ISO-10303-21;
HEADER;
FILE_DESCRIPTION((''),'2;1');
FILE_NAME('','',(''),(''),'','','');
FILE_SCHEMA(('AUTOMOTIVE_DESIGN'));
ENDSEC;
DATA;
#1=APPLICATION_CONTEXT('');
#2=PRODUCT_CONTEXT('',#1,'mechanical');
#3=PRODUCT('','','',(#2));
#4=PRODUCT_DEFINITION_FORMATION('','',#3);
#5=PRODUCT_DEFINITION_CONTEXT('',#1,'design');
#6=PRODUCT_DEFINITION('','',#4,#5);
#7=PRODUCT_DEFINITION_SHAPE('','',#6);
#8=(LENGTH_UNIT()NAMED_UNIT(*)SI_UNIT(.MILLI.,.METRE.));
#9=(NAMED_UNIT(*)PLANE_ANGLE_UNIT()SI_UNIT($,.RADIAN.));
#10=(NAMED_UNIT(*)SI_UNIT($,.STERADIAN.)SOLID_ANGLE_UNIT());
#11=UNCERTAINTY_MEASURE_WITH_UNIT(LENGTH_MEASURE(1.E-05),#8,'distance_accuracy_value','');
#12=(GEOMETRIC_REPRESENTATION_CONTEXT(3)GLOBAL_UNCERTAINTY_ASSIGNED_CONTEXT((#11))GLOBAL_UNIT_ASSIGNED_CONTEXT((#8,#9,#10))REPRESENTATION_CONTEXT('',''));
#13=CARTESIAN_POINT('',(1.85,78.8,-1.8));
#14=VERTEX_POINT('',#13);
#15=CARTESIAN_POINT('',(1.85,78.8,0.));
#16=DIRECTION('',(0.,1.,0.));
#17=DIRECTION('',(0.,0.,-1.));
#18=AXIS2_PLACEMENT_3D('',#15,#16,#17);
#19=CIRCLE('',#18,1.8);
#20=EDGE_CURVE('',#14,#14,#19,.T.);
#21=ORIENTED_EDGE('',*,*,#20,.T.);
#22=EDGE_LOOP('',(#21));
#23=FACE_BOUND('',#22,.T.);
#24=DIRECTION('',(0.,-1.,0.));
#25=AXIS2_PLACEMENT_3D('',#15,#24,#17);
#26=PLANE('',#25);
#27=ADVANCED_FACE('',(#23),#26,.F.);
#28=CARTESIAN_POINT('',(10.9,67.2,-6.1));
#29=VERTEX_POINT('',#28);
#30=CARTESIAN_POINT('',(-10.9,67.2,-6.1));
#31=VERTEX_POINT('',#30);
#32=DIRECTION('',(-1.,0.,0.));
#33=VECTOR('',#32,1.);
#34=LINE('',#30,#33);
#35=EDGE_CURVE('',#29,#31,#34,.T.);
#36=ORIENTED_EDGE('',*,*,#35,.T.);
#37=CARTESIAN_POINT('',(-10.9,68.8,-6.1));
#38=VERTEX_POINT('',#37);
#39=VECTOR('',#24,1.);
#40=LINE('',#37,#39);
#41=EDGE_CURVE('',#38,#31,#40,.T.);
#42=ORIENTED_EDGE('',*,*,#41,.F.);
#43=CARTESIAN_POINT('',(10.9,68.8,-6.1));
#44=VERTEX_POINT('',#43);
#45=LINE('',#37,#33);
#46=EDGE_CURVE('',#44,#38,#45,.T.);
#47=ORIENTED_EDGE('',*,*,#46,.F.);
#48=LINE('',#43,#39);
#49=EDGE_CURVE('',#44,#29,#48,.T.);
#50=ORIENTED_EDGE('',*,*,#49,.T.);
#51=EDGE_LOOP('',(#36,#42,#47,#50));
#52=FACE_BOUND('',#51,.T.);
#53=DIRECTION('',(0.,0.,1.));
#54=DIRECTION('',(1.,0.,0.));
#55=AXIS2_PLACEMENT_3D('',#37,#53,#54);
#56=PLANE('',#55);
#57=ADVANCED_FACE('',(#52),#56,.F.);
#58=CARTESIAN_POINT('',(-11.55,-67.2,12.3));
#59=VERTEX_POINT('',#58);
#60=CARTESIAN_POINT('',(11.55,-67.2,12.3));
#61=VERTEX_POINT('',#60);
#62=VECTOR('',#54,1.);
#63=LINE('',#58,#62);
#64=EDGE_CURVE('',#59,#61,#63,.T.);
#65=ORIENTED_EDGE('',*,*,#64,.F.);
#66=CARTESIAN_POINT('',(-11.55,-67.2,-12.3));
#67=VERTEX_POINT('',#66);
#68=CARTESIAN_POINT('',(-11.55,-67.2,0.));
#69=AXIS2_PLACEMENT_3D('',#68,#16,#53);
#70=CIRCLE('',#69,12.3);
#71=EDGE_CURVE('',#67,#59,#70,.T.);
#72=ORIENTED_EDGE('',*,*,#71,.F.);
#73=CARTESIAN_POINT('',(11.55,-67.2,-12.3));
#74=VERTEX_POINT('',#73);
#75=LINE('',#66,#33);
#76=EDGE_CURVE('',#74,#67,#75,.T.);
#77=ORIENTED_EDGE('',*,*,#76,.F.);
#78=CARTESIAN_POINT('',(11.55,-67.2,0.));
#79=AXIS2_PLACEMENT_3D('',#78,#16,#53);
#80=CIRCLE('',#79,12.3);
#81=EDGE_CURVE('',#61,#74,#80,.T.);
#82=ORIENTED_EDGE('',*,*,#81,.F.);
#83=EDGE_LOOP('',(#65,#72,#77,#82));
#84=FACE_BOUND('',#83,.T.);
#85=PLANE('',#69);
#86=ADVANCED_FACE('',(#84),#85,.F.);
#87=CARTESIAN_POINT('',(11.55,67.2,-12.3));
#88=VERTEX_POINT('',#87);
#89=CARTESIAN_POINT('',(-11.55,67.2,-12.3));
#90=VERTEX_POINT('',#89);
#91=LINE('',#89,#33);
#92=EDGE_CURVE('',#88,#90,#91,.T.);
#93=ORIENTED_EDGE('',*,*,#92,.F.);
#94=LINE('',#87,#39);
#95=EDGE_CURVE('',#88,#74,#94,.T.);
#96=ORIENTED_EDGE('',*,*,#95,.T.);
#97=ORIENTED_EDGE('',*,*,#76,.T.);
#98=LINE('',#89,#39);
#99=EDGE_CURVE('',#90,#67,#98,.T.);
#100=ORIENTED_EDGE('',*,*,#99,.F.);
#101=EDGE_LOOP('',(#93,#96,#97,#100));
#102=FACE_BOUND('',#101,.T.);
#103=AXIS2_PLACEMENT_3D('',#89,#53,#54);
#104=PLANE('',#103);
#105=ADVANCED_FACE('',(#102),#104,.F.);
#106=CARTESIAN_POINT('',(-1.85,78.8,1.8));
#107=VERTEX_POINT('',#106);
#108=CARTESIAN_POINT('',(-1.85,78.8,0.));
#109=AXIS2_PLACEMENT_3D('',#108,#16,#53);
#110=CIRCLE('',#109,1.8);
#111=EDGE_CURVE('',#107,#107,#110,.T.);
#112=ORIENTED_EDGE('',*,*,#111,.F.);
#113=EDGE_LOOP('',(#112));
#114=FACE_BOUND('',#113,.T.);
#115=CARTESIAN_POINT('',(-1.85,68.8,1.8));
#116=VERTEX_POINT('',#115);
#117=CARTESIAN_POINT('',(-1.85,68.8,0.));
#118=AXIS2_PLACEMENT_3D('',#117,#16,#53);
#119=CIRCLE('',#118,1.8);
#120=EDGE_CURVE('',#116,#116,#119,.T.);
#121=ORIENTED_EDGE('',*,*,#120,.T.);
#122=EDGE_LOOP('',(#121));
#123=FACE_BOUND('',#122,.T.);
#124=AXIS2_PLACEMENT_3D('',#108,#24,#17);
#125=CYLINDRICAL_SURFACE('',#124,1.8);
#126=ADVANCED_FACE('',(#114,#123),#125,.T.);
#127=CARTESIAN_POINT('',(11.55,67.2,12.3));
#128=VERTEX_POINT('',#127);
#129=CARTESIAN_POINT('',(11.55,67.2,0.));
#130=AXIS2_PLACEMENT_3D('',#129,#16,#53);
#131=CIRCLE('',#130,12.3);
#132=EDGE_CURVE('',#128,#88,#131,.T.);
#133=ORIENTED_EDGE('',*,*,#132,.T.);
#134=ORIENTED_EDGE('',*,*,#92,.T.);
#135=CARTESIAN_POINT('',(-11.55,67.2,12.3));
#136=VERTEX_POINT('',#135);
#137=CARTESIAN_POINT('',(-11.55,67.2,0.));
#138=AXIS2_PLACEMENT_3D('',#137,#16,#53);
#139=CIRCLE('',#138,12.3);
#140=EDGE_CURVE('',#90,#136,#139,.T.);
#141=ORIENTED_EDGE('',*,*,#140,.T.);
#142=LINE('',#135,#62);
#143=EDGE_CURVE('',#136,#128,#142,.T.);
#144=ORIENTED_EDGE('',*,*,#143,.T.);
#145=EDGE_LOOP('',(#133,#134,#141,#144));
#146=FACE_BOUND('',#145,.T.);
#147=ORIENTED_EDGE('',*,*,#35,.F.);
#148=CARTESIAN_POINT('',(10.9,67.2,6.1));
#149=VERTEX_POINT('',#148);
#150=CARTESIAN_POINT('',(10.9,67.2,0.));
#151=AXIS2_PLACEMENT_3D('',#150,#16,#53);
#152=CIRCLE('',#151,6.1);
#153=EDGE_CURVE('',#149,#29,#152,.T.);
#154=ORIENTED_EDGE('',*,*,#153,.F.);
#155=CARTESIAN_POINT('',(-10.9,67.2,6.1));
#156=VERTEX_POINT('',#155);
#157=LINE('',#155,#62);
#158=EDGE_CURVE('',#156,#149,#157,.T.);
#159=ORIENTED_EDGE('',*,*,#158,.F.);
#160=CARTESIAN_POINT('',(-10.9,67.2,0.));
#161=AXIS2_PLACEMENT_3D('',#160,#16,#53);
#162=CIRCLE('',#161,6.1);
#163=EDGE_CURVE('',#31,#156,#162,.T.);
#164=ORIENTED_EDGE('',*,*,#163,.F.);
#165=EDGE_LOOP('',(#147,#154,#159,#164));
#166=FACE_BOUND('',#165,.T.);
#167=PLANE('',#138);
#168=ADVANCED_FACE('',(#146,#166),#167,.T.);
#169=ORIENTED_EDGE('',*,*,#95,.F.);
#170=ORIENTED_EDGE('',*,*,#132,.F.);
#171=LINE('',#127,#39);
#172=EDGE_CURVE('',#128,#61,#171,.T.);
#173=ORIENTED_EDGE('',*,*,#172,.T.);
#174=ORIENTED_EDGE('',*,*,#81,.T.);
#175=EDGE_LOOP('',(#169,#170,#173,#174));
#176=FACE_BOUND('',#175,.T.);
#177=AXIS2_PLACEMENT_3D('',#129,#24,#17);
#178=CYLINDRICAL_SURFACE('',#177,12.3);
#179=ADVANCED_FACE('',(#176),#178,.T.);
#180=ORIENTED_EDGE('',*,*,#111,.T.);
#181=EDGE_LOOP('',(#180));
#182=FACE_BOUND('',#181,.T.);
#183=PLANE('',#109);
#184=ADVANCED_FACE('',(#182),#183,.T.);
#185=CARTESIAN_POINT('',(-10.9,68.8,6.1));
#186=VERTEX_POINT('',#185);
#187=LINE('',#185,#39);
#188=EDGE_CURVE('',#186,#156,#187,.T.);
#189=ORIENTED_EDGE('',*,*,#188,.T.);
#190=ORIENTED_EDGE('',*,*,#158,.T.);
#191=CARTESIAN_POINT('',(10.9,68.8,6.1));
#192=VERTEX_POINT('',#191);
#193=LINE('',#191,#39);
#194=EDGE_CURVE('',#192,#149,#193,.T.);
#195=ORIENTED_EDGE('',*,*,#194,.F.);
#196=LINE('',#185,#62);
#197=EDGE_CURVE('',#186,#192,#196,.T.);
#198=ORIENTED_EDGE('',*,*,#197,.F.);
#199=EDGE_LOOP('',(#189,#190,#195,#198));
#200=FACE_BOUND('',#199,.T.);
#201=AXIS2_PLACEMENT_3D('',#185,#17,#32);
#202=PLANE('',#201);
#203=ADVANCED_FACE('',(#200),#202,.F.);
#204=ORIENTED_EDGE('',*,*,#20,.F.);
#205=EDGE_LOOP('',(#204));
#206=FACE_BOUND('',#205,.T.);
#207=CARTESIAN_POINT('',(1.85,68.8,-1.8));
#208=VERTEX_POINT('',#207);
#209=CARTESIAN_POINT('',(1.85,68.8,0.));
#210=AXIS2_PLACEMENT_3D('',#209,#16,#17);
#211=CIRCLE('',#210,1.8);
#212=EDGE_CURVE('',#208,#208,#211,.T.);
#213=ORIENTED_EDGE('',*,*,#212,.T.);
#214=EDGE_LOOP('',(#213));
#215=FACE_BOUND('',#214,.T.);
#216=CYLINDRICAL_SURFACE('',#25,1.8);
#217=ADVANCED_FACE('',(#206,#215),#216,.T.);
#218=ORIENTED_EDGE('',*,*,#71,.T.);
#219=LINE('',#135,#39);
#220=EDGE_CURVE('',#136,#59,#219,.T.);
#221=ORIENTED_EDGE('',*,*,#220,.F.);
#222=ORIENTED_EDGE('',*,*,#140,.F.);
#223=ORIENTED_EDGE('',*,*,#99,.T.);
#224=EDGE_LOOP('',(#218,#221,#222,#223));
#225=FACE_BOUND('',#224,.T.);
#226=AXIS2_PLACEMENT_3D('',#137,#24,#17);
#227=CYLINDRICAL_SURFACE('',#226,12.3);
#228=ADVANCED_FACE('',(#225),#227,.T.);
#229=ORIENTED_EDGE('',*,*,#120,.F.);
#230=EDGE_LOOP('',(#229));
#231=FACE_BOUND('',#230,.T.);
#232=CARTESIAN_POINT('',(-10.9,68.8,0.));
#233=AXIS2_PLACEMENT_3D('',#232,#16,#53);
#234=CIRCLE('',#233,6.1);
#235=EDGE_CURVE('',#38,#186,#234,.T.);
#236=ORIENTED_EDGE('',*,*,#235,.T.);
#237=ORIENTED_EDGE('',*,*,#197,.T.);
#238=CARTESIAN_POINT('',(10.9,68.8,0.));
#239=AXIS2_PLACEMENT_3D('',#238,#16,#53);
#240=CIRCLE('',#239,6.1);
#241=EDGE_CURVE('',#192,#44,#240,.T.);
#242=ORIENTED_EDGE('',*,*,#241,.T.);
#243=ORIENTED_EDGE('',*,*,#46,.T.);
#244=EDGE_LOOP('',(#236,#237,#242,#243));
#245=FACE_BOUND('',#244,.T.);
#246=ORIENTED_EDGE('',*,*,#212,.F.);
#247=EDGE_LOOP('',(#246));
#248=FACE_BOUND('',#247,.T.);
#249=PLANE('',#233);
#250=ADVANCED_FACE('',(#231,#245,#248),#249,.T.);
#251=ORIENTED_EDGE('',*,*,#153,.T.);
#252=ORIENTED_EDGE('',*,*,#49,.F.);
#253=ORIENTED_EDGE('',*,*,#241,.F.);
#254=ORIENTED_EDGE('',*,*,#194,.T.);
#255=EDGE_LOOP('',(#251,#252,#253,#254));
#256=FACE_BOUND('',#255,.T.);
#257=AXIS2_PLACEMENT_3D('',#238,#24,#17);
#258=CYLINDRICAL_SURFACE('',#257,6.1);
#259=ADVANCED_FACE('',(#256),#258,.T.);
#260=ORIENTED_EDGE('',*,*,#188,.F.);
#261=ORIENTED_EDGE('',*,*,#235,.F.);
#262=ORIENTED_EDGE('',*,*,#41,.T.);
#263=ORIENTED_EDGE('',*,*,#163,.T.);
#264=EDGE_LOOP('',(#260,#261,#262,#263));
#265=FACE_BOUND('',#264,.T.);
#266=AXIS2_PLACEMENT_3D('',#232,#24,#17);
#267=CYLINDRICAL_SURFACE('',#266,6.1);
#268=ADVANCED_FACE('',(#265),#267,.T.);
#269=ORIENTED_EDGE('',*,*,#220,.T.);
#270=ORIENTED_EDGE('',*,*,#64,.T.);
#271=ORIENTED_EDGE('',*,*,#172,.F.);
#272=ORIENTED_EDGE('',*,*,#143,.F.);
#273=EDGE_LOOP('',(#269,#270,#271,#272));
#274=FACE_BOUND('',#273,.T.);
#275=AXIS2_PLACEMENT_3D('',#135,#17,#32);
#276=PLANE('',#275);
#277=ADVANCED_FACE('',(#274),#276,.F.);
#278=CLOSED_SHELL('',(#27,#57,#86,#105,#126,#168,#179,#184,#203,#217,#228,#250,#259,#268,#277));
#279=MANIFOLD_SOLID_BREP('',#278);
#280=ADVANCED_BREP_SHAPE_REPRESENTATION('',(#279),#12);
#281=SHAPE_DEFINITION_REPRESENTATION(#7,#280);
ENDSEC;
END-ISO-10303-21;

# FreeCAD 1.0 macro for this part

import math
import FreeCAD as App
import Part
import Sketcher
from FreeCAD import Vector

doc = App.newDocument("Part")
body = doc.addObject("PartDesign::Body", "Body")

# Sketch on XZ plane
sketch1 = doc.addObject("Sketcher::SketchObject", "Sketch")
body.addObject(sketch1)
sketch1.AttachmentSupport = (doc.XZ_Plane, [""])
sketch1.MapMode = "FlatFace"
sketch1.addGeometry(Part.LineSegment(Vector(11.55, -12.3, 0), Vector(-11.55, -12.3, 0)), False)
sketch1.addGeometry(Part.ArcOfCircle(Part.Circle(Vector(-11.55, 0, 0), Vector(0, 0, 1), 12.3), math.radians(90), math.radians(270)), False)
sketch1.addGeometry(Part.LineSegment(Vector(-11.55, 12.3, 0), Vector(11.55, 12.3, 0)), False)
sketch1.addGeometry(Part.ArcOfCircle(Part.Circle(Vector(11.55, 0, 0), Vector(0, 0, 1), 12.3), math.radians(-90), math.radians(90)), False)
sketch1.addConstraint(Sketcher.Constraint("Tangent", 0, 2, 1, 2))
sketch1.addConstraint(Sketcher.Constraint("Tangent", 1, 1, 2, 1))
sketch1.addConstraint(Sketcher.Constraint("Tangent", 2, 2, 3, 2))
sketch1.addConstraint(Sketcher.Constraint("Tangent", 3, 1, 0, 1))
sketch1.addConstraint(Sketcher.Constraint("Horizontal", 0))
sketch1.addConstraint(Sketcher.Constraint("Horizontal", 2))
sketch1.addConstraint(Sketcher.Constraint("Symmetric", 1, 3, 3, 3, -1, 1))
sketch1.addConstraint(Sketcher.Constraint("Radius", 1, 12.3))
sketch1.addConstraint(Sketcher.Constraint("DistanceX", 0, 2, 0, 1, 23.1))
pad1 = doc.addObject("PartDesign::Pad", "Pad")
body.addObject(pad1)
pad1.Profile = sketch1
pad1.Length = 134.4
pad1.Midplane = True

# Sketch on XZ plane
sketch2 = doc.addObject("Sketcher::SketchObject", "Sketch001")
body.addObject(sketch2)
sketch2.AttachmentSupport = (doc.XZ_Plane, [""])
sketch2.MapMode = "FlatFace"
sketch2.AttachmentOffset = App.Placement(Vector(0, 0, -67.2), App.Rotation())
sketch2.addGeometry(Part.LineSegment(Vector(10.9, -6.1, 0), Vector(-10.9, -6.1, 0)), False)
sketch2.addGeometry(Part.ArcOfCircle(Part.Circle(Vector(-10.9, 0, 0), Vector(0, 0, 1), 6.1), math.radians(90), math.radians(270)), False)
sketch2.addGeometry(Part.LineSegment(Vector(-10.9, 6.1, 0), Vector(10.9, 6.1, 0)), False)
sketch2.addGeometry(Part.ArcOfCircle(Part.Circle(Vector(10.9, 0, 0), Vector(0, 0, 1), 6.1), math.radians(-90), math.radians(90)), False)
sketch2.addConstraint(Sketcher.Constraint("Tangent", 0, 2, 1, 2))
sketch2.addConstraint(Sketcher.Constraint("Tangent", 1, 1, 2, 1))
sketch2.addConstraint(Sketcher.Constraint("Tangent", 2, 2, 3, 2))
sketch2.addConstraint(Sketcher.Constraint("Tangent", 3, 1, 0, 1))
sketch2.addConstraint(Sketcher.Constraint("Horizontal", 0))
sketch2.addConstraint(Sketcher.Constraint("Horizontal", 2))
sketch2.addConstraint(Sketcher.Constraint("Symmetric", 1, 3, 3, 3, -1, 1))
sketch2.addConstraint(Sketcher.Constraint("Radius", 1, 6.1))
sketch2.addConstraint(Sketcher.Constraint("DistanceX", 0, 2, 0, 1, 21.8))
pad2 = doc.addObject("PartDesign::Pad", "Pad001")
body.addObject(pad2)
pad2.Profile = sketch2
pad2.Length = 1.6
pad2.Reversed = True

# Sketch on XZ plane
sketch3 = doc.addObject("Sketcher::SketchObject", "Sketch002")
body.addObject(sketch3)
sketch3.AttachmentSupport = (doc.XZ_Plane, [""])
sketch3.MapMode = "FlatFace"
sketch3.AttachmentOffset = App.Placement(Vector(0, 0, -68.8), App.Rotation())
sketch3.addGeometry(Part.Circle(Vector(-1.85, 0, 0), Vector(0, 0, 1), 1.8), False)
sketch3.addGeometry(Part.Circle(Vector(1.85, 0, 0), Vector(0, 0, 1), 1.8), False)
sketch3.addConstraint(Sketcher.Constraint("Equal", 0, 1))
sketch3.addConstraint(Sketcher.Constraint("Symmetric", 0, 3, 1, 3, -1, 1))
sketch3.addConstraint(Sketcher.Constraint("PointOnObject", 0, 3, -1))
sketch3.addConstraint(Sketcher.Constraint("Diameter", 0, 3.6))
sketch3.addConstraint(Sketcher.Constraint("DistanceX", 0, 3, 1, 3, 3.7))
pad3 = doc.addObject("PartDesign::Pad", "Pad002")
body.addObject(pad3)
pad3.Profile = sketch3
pad3.Length = 10
pad3.Reversed = True

doc.recompute()
